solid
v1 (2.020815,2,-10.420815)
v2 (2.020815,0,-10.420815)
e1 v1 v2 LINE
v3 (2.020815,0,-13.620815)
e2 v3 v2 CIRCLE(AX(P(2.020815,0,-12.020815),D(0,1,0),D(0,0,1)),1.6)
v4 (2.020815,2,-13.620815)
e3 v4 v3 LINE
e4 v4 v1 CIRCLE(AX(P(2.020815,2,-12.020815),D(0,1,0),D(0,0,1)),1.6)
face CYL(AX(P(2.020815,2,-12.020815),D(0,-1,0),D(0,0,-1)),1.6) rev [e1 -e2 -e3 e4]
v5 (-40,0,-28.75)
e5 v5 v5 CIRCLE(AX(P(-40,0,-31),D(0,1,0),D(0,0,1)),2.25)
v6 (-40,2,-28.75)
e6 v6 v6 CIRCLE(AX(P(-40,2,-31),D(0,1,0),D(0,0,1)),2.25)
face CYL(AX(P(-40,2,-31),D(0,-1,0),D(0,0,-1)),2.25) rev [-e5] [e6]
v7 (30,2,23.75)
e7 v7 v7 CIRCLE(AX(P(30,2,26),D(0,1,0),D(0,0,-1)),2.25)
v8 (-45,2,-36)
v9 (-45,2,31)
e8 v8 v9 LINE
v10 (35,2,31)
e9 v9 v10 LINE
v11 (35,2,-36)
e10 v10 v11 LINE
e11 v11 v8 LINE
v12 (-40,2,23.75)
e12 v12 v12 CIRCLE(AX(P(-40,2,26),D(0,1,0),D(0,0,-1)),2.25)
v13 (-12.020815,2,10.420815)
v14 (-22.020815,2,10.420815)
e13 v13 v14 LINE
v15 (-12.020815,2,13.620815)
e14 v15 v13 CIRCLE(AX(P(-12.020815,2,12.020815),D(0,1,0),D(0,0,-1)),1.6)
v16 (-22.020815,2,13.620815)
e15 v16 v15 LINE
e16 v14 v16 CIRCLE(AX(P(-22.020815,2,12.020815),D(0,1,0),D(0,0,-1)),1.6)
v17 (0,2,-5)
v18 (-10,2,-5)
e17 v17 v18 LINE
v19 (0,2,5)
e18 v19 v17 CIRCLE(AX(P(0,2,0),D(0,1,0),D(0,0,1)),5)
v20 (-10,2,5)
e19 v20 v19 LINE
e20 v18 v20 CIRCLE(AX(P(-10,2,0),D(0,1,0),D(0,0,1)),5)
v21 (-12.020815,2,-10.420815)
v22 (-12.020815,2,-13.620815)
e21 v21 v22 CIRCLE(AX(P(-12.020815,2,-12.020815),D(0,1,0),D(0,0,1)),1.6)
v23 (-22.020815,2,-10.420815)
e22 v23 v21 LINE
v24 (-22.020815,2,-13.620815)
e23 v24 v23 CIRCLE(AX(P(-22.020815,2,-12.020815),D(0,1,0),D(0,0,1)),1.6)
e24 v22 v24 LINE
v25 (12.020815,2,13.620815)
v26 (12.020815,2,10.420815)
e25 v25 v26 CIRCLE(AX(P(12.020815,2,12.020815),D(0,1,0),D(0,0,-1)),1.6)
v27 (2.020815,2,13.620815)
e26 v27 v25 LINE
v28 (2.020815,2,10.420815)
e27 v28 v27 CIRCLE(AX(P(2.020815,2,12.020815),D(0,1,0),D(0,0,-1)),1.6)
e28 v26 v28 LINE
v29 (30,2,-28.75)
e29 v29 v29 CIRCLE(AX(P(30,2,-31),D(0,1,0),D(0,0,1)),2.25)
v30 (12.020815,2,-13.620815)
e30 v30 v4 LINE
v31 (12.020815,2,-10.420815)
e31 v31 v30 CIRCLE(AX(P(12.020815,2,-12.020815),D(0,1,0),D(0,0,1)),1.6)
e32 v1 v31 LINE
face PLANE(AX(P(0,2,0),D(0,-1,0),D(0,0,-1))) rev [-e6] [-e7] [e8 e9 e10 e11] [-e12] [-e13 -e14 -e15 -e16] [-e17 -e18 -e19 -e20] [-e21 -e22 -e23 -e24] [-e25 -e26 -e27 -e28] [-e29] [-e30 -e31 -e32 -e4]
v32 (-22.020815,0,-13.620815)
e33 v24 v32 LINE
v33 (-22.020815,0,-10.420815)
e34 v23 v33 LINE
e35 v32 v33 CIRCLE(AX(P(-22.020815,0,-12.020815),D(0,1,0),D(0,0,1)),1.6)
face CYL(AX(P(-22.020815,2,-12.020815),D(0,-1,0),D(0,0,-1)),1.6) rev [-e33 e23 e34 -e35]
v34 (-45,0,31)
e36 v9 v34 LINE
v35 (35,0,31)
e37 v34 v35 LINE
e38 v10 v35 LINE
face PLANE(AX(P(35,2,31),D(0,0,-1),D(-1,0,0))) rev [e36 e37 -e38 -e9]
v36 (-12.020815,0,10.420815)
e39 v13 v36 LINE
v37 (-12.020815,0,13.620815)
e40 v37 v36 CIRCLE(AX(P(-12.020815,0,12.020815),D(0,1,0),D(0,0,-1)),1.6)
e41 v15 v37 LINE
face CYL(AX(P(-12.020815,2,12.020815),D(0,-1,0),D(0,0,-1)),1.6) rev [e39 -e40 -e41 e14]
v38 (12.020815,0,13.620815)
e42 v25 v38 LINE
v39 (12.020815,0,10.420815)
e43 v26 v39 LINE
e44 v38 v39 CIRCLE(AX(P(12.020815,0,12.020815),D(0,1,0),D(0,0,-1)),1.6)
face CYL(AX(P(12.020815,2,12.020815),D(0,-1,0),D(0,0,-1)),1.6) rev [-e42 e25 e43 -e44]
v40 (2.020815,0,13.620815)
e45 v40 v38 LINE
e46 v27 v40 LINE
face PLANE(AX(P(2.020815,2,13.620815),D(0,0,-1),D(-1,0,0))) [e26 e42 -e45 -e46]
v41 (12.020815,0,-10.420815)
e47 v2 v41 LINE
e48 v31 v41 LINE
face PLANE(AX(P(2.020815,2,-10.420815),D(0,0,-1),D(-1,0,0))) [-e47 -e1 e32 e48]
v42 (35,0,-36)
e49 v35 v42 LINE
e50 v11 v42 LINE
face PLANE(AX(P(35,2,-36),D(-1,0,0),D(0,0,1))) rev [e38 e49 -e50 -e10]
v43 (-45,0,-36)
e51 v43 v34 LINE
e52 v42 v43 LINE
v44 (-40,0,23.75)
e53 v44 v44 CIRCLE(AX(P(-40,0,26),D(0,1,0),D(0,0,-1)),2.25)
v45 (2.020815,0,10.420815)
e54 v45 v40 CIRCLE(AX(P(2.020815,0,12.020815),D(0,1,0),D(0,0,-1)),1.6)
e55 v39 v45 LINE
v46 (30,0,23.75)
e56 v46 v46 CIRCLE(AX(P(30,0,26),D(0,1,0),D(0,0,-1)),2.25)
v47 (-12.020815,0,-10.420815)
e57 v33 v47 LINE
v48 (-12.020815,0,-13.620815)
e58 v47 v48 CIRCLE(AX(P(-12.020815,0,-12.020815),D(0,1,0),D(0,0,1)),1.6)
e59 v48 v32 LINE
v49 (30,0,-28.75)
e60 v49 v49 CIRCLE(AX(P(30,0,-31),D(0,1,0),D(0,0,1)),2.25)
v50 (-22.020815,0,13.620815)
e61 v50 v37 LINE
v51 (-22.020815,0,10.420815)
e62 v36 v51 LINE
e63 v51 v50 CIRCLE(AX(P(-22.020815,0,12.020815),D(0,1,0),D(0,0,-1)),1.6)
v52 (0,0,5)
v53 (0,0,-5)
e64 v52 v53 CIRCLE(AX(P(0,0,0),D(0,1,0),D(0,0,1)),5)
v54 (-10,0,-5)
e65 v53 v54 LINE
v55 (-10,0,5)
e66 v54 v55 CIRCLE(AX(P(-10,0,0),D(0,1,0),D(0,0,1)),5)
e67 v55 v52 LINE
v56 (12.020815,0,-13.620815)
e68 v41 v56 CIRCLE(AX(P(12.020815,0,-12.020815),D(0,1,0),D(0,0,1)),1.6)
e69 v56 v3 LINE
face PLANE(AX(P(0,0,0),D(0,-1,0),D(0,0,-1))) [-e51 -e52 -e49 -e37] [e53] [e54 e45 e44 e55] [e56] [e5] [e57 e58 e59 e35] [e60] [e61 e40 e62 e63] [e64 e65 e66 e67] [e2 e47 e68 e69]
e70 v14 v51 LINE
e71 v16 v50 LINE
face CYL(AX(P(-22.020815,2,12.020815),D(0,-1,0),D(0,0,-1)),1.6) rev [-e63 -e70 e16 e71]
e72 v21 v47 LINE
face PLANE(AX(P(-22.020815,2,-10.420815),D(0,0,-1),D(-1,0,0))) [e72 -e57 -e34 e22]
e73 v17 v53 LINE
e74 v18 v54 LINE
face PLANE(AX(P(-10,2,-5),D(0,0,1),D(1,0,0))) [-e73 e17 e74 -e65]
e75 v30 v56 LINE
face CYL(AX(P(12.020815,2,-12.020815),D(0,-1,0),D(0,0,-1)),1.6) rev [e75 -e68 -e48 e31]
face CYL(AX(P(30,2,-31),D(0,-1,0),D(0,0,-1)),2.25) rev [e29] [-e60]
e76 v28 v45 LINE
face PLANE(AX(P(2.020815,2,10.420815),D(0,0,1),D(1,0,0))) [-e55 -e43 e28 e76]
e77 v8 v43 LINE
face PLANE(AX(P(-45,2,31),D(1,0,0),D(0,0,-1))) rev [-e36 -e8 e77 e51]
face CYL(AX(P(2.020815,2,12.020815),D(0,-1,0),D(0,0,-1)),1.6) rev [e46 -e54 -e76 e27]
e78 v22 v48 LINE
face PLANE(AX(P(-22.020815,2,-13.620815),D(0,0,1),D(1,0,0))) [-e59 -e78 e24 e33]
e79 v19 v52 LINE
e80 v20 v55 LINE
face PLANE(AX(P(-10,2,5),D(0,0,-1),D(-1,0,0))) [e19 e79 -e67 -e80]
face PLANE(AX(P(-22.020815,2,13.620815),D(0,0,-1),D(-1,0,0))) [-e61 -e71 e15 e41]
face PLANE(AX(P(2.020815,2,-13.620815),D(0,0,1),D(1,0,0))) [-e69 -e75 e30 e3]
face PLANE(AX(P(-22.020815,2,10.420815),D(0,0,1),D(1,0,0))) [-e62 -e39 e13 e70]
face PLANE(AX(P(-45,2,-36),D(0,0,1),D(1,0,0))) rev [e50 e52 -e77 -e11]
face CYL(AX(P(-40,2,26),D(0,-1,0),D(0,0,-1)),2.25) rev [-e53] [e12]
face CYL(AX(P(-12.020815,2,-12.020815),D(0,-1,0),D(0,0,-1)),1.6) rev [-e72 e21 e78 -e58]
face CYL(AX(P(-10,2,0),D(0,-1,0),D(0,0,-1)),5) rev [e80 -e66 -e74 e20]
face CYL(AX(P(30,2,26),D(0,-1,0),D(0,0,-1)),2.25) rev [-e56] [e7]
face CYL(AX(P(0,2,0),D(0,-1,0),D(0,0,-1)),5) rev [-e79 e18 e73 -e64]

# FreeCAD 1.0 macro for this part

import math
import FreeCAD as App
import Part
import Sketcher

V = App.Vector
Q = App.Units.Quantity


def add_polygon(sketch, points):
    """Adds a closed chain of lines whose ends are joined by coincident constraints."""
    first, n = sketch.GeometryCount, len(points)
    for a, b in zip(points, points[1:] + points[:1]):
        sketch.addGeometry(Part.LineSegment(App.Vector(*a, 0), App.Vector(*b, 0)), False)
    for i in range(n):
        sketch.addConstraint(Sketcher.Constraint("Coincident", first + i, 2, first + (i + 1) % n, 1))

doc = App.newDocument("Part")
params = doc.addObject("Spreadsheet::Sheet", "Params")
for row, (alias, value) in enumerate([
    ("sketch1_radius", "5 mm"),
    ("sketch1_diameter", "4.5 mm"),
    ("sketch1_radius2", "1.6 mm"),
    ("sketch1_width", "80 mm"),
    ("sketch1_width2", "10 mm"),
    ("pad1_length", "2 mm"),
], start=1):
    params.set(f"A{row}", alias)
    params.set(f"B{row}", "=" + value)
    params.setAlias(f"B{row}", alias)

body = doc.addObject("PartDesign::Body", "Body")

sketch1 = body.newObject("Sketcher::SketchObject", "Sketch")
sketch1.AttachmentSupport = (doc.getObject("XZ_Plane"), [""])
sketch1.MapMode = "FlatFace"
add_polygon(sketch1, [(-45, -36), (-45, 31), (35, 31), (35, -36)])
sketch1.addGeometry(Part.Circle(V(-40, 26, 0), V(0, 0, 1), 2.25), False)
sketch1.addGeometry(Part.LineSegment(V(-12.020815, 13.620815, 0), V(-22.020815, 13.620815, 0)), False)
sketch1.addGeometry(Part.ArcOfCircle(Part.Circle(V(-22.020815, 12.020815, 0), V(0, 0, 1), 1.6), math.radians(90), math.radians(270)), False)
sketch1.addGeometry(Part.LineSegment(V(-22.020815, 10.420815, 0), V(-12.020815, 10.420815, 0)), False)
sketch1.addGeometry(Part.ArcOfCircle(Part.Circle(V(-12.020815, 12.020815, 0), V(0, 0, 1), 1.6), math.radians(-90), math.radians(90)), False)
sketch1.addGeometry(Part.Circle(V(30, 26, 0), V(0, 0, 1), 2.25), False)
sketch1.addGeometry(Part.LineSegment(V(12.020815, 13.620815, 0), V(2.020815, 13.620815, 0)), False)
sketch1.addGeometry(Part.ArcOfCircle(Part.Circle(V(2.020815, 12.020815, 0), V(0, 0, 1), 1.6), math.radians(90), math.radians(270)), False)
sketch1.addGeometry(Part.LineSegment(V(2.020815, 10.420815, 0), V(12.020815, 10.420815, 0)), False)
sketch1.addGeometry(Part.ArcOfCircle(Part.Circle(V(12.020815, 12.020815, 0), V(0, 0, 1), 1.6), math.radians(-90), math.radians(90)), False)
sketch1.addGeometry(Part.ArcOfCircle(Part.Circle(V(-10, 0, 0), V(0, 0, 1), 5), math.radians(90), math.radians(270)), False)
sketch1.addGeometry(Part.LineSegment(V(-10, -5, 0), V(0, -5, 0)), False)
sketch1.addGeometry(Part.ArcOfCircle(Part.Circle(V(0, 0, 0), V(0, 0, 1), 5), math.radians(-90), math.radians(90)), False)
sketch1.addGeometry(Part.LineSegment(V(0, 5, 0), V(-10, 5, 0)), False)
sketch1.addGeometry(Part.ArcOfCircle(Part.Circle(V(-22.020815, -12.020815, 0), V(0, 0, 1), 1.6), math.radians(90), math.radians(270)), False)
sketch1.addGeometry(Part.LineSegment(V(-22.020815, -13.620815, 0), V(-12.020815, -13.620815, 0)), False)
sketch1.addGeometry(Part.ArcOfCircle(Part.Circle(V(-12.020815, -12.020815, 0), V(0, 0, 1), 1.6), math.radians(-90), math.radians(90)), False)
sketch1.addGeometry(Part.LineSegment(V(-12.020815, -10.420815, 0), V(-22.020815, -10.420815, 0)), False)
sketch1.addGeometry(Part.Circle(V(-40, -31, 0), V(0, 0, 1), 2.25), False)
sketch1.addGeometry(Part.ArcOfCircle(Part.Circle(V(2.020815, -12.020815, 0), V(0, 0, 1), 1.6), math.radians(90), math.radians(270)), False)
sketch1.addGeometry(Part.LineSegment(V(2.020815, -13.620815, 0), V(12.020815, -13.620815, 0)), False)
sketch1.addGeometry(Part.ArcOfCircle(Part.Circle(V(12.020815, -12.020815, 0), V(0, 0, 1), 1.6), math.radians(-90), math.radians(90)), False)
sketch1.addGeometry(Part.LineSegment(V(12.020815, -10.420815, 0), V(2.020815, -10.420815, 0)), False)
sketch1.addGeometry(Part.Circle(V(30, -31, 0), V(0, 0, 1), 2.25), False)
sketch1.addConstraint(Sketcher.Constraint("Tangent", 5, 2, 6, 1))
sketch1.addConstraint(Sketcher.Constraint("Tangent", 6, 2, 7, 1))
sketch1.addConstraint(Sketcher.Constraint("Tangent", 7, 2, 8, 1))
sketch1.addConstraint(Sketcher.Constraint("Tangent", 8, 2, 5, 1))
sketch1.addConstraint(Sketcher.Constraint("Tangent", 10, 2, 11, 1))
sketch1.addConstraint(Sketcher.Constraint("Tangent", 11, 2, 12, 1))
sketch1.addConstraint(Sketcher.Constraint("Tangent", 12, 2, 13, 1))
sketch1.addConstraint(Sketcher.Constraint("Tangent", 13, 2, 10, 1))
sketch1.addConstraint(Sketcher.Constraint("Tangent", 14, 2, 15, 1))
sketch1.addConstraint(Sketcher.Constraint("Tangent", 15, 2, 16, 1))
sketch1.addConstraint(Sketcher.Constraint("Tangent", 16, 2, 17, 1))
sketch1.addConstraint(Sketcher.Constraint("Tangent", 17, 2, 14, 1))
sketch1.addConstraint(Sketcher.Constraint("Tangent", 18, 2, 19, 1))
sketch1.addConstraint(Sketcher.Constraint("Tangent", 19, 2, 20, 1))
sketch1.addConstraint(Sketcher.Constraint("Tangent", 20, 2, 21, 1))
sketch1.addConstraint(Sketcher.Constraint("Tangent", 21, 2, 18, 1))
sketch1.addConstraint(Sketcher.Constraint("Tangent", 23, 2, 24, 1))
sketch1.addConstraint(Sketcher.Constraint("Tangent", 24, 2, 25, 1))
sketch1.addConstraint(Sketcher.Constraint("Tangent", 25, 2, 26, 1))
sketch1.addConstraint(Sketcher.Constraint("Tangent", 26, 2, 23, 1))
sketch1.addConstraint(Sketcher.Constraint("Vertical", 0))
sketch1.addConstraint(Sketcher.Constraint("Horizontal", 1))
sketch1.addConstraint(Sketcher.Constraint("Vertical", 2))
sketch1.addConstraint(Sketcher.Constraint("Horizontal", 3))
sketch1.addConstraint(Sketcher.Constraint("Horizontal", 5))
sketch1.addConstraint(Sketcher.Constraint("Horizontal", 7))
sketch1.addConstraint(Sketcher.Constraint("Horizontal", 10))
sketch1.addConstraint(Sketcher.Constraint("Horizontal", 12))
sketch1.addConstraint(Sketcher.Constraint("Horizontal", 15))
sketch1.addConstraint(Sketcher.Constraint("Horizontal", 17))
sketch1.addConstraint(Sketcher.Constraint("Horizontal", 19))
sketch1.addConstraint(Sketcher.Constraint("Horizontal", 21))
sketch1.addConstraint(Sketcher.Constraint("Horizontal", 24))
sketch1.addConstraint(Sketcher.Constraint("Horizontal", 26))
sketch1.addConstraint(Sketcher.Constraint("Coincident", 16, 3, -1, 1))
sketch1.addConstraint(Sketcher.Constraint("Equal", 4, 9))
sketch1.addConstraint(Sketcher.Constraint("Equal", 8, 11))
sketch1.addConstraint(Sketcher.Constraint("Equal", 13, 18))
sketch1.addConstraint(Sketcher.Constraint("Equal", 9, 22))
sketch1.addConstraint(Sketcher.Constraint("Equal", 20, 23))
sketch1.addConstraint(Sketcher.Constraint("Equal", 22, 27))
sketch1.addConstraint(Sketcher.Constraint("Symmetric", 13, 3, 20, 3, -1, 1))
sketch1.addConstraint(Sketcher.Constraint("Symmetric", 8, 3, 25, 3, -1, 1))
sketch1.addConstraint(Sketcher.Constraint("Symmetric", 8, 3, 13, 3, -2))
sketch1.addConstraint(Sketcher.Constraint("Horizontal", 4, 3, 9, 3))
sketch1.addConstraint(Sketcher.Constraint("Horizontal", 22, 3, 27, 3))
sketch1.addConstraint(Sketcher.Constraint("Vertical", 6, 3, 18, 3))
sketch1.addConstraint(Sketcher.Constraint("Vertical", 4, 3, 22, 3))
sketch1.addConstraint(Sketcher.Constraint("Vertical", 11, 3, 23, 3))
sketch1.addConstraint(Sketcher.Constraint("Vertical", 9, 3, 27, 3))
sketch1.addConstraint(Sketcher.Constraint("Equal", 7, 10))
sketch1.addConstraint(Sketcher.Constraint("Equal", 12, 15))
sketch1.addConstraint(Sketcher.Constraint("Radius", 14, Q("5 mm")))
sketch1.addConstraint(Sketcher.Constraint("Diameter", 4, Q("4.5 mm")))
sketch1.addConstraint(Sketcher.Constraint("Radius", 6, Q("1.6 mm")))
sketch1.addConstraint(Sketcher.Constraint("DistanceX", 1, 1, 1, 2, Q("80 mm")))
sketch1.addConstraint(Sketcher.Constraint("DistanceX", 5, 2, 5, 1, Q("10 mm")))
sketch1.addConstraint(Sketcher.Constraint("DistanceY", 0, 1, 0, 2, Q("67 mm")))
sketch1.addConstraint(Sketcher.Constraint("DistanceX", 4, 3, -1, 1, Q("40 mm")))
sketch1.addConstraint(Sketcher.Constraint("DistanceY", -1, 1, 4, 3, Q("26 mm")))
sketch1.addConstraint(Sketcher.Constraint("DistanceX", -1, 1, 9, 3, Q("30 mm")))
sketch1.addConstraint(Sketcher.Constraint("DistanceY", 22, 3, -1, 1, Q("31 mm")))
sketch1.addConstraint(Sketcher.Constraint("DistanceX", 0, 2, -1, 1, Q("45 mm")))
sketch1.addConstraint(Sketcher.Constraint("DistanceY", -1, 1, 0, 2, Q("31 mm")))
sketch1.addConstraint(Sketcher.Constraint("DistanceX", 8, 3, 11, 3, Q("14.041631 mm")))
sketch1.addConstraint(Sketcher.Constraint("DistanceY", 18, 3, 6, 3, Q("24.041631 mm")))
sketch1.setExpression("Constraints[56]", "Params.sketch1_radius")
sketch1.setExpression("Constraints[57]", "Params.sketch1_diameter")
sketch1.setExpression("Constraints[58]", "Params.sketch1_radius2")
sketch1.setExpression("Constraints[59]", "Params.sketch1_width")
sketch1.setExpression("Constraints[60]", "Params.sketch1_width2")
pad1 = body.newObject("PartDesign::Pad", "Pad")
pad1.Profile = sketch1
pad1.setExpression("Length", "Params.pad1_length")
pad1.Reversed = True

doc.recompute()
